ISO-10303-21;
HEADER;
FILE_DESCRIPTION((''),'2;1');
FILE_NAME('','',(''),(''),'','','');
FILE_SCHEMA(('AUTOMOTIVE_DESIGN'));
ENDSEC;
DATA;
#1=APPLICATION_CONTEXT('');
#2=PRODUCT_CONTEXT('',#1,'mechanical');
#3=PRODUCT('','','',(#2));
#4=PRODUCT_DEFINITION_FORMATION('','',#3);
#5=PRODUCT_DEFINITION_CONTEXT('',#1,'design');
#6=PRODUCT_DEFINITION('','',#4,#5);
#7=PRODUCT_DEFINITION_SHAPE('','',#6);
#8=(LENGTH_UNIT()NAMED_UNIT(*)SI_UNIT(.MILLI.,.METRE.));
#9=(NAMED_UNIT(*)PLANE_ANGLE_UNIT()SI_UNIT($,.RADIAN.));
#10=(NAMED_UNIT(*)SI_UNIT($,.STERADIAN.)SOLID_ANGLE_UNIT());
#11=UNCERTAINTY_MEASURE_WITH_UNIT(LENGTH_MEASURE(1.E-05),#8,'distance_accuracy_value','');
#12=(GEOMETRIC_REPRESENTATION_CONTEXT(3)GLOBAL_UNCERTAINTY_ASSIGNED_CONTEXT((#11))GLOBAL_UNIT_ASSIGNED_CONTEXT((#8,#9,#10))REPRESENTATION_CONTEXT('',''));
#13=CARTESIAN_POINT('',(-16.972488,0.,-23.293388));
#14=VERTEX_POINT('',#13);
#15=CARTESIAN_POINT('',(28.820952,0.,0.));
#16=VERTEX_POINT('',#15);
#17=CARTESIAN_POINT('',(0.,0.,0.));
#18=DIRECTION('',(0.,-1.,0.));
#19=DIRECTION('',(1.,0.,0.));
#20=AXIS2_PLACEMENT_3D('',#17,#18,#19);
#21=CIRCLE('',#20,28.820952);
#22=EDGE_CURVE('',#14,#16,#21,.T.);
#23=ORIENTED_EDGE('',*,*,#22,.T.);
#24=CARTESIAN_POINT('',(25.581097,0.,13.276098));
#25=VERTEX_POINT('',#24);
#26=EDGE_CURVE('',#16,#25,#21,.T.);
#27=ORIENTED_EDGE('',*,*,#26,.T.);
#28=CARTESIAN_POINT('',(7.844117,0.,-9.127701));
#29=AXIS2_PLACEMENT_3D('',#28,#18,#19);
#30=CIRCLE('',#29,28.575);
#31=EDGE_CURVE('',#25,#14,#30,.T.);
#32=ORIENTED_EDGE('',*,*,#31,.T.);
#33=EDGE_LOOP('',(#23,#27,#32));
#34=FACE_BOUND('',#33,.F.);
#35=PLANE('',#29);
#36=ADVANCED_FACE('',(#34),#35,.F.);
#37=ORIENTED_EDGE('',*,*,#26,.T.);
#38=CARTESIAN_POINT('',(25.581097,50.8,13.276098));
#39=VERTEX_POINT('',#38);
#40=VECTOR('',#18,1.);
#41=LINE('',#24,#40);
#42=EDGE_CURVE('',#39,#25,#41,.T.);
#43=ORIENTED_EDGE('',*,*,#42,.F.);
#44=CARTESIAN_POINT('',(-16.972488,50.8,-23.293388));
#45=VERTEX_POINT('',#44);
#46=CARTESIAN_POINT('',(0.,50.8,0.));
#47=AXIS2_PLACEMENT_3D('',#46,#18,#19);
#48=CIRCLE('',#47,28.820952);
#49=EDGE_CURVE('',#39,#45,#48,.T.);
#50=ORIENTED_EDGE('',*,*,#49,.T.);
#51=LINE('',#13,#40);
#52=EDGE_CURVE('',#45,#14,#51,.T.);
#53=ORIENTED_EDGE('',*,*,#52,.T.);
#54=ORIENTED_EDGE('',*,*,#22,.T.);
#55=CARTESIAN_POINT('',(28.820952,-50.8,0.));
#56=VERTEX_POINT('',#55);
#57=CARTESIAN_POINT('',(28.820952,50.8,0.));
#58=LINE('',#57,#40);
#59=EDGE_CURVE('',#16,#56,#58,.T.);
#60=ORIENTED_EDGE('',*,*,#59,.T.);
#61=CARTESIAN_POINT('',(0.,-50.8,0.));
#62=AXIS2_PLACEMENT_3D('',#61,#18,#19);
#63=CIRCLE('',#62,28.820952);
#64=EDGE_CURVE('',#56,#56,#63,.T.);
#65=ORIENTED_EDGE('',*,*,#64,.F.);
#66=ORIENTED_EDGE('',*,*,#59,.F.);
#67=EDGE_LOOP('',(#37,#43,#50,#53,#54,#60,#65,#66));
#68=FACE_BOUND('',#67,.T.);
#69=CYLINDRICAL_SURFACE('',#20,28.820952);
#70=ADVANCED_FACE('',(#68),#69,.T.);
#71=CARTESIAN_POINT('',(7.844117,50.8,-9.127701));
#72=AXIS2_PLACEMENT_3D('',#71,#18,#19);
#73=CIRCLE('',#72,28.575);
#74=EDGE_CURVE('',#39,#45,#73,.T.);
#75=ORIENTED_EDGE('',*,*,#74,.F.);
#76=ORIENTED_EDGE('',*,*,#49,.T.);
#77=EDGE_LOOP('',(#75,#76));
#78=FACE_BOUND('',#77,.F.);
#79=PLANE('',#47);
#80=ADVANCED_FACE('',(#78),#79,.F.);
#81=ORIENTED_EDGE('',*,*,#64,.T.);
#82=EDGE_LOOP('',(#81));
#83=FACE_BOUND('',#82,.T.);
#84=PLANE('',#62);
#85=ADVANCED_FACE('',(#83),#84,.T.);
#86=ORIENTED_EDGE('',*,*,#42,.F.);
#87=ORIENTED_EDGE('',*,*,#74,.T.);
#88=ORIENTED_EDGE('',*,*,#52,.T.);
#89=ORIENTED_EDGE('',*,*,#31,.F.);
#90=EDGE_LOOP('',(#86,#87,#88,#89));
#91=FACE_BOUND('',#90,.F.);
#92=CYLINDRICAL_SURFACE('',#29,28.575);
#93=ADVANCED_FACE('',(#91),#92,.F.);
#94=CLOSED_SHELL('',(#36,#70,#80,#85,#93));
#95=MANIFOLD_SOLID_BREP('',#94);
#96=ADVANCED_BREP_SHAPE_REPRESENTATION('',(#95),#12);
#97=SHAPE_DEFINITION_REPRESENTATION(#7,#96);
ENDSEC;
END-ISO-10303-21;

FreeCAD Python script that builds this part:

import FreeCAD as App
import Part
import Sketcher
from FreeCAD import Vector
Q = App.Units.Quantity

doc = App.newDocument("Part")
body = doc.addObject("PartDesign::Body", "Body")

# Sketch on XZ plane
sketch1 = body.newObject("Sketcher::SketchObject", "Sketch")
sketch1.AttachmentSupport = (doc.getObject("XZ_Plane"), [""])
sketch1.MapMode = "FlatFace"
sketch1.addGeometry(Part.Circle(Vector(0, 0, 0), Vector(0, 0, 1), 28.820952), False)
sketch1.addConstraint(Sketcher.Constraint("Coincident", 0, 3, -1, 1))
sketch1.addConstraint(Sketcher.Constraint("Diameter", 0, Q("57.641904 mm")))
pad1 = body.newObject("PartDesign::Pad", "Pad")
pad1.Profile = sketch1
pad1.Length = Q("4 in")
pad1.Midplane = True

# Sketch on XZ plane
sketch2 = body.newObject("Sketcher::SketchObject", "Sketch001")
sketch2.AttachmentSupport = (doc.getObject("XZ_Plane"), [""])
sketch2.MapMode = "FlatFace"
sketch2.addGeometry(Part.Circle(Vector(7.844117, -9.127701, 0), Vector(0, 0, 1), 28.575), False)
sketch2.addConstraint(Sketcher.Constraint("Diameter", 0, Q("2.25 in")))
sketch2.addConstraint(Sketcher.Constraint("DistanceY", 0, 3, -1, 1, Q("9.127701 mm")))
sketch2.addConstraint(Sketcher.Constraint("DistanceX", -1, 1, 0, 3, Q("7.844117 mm")))
pocket1 = body.newObject("PartDesign::Pocket", "Pocket")
pocket1.Profile = sketch2
pocket1.Type = "ThroughAll"

doc.recompute()
